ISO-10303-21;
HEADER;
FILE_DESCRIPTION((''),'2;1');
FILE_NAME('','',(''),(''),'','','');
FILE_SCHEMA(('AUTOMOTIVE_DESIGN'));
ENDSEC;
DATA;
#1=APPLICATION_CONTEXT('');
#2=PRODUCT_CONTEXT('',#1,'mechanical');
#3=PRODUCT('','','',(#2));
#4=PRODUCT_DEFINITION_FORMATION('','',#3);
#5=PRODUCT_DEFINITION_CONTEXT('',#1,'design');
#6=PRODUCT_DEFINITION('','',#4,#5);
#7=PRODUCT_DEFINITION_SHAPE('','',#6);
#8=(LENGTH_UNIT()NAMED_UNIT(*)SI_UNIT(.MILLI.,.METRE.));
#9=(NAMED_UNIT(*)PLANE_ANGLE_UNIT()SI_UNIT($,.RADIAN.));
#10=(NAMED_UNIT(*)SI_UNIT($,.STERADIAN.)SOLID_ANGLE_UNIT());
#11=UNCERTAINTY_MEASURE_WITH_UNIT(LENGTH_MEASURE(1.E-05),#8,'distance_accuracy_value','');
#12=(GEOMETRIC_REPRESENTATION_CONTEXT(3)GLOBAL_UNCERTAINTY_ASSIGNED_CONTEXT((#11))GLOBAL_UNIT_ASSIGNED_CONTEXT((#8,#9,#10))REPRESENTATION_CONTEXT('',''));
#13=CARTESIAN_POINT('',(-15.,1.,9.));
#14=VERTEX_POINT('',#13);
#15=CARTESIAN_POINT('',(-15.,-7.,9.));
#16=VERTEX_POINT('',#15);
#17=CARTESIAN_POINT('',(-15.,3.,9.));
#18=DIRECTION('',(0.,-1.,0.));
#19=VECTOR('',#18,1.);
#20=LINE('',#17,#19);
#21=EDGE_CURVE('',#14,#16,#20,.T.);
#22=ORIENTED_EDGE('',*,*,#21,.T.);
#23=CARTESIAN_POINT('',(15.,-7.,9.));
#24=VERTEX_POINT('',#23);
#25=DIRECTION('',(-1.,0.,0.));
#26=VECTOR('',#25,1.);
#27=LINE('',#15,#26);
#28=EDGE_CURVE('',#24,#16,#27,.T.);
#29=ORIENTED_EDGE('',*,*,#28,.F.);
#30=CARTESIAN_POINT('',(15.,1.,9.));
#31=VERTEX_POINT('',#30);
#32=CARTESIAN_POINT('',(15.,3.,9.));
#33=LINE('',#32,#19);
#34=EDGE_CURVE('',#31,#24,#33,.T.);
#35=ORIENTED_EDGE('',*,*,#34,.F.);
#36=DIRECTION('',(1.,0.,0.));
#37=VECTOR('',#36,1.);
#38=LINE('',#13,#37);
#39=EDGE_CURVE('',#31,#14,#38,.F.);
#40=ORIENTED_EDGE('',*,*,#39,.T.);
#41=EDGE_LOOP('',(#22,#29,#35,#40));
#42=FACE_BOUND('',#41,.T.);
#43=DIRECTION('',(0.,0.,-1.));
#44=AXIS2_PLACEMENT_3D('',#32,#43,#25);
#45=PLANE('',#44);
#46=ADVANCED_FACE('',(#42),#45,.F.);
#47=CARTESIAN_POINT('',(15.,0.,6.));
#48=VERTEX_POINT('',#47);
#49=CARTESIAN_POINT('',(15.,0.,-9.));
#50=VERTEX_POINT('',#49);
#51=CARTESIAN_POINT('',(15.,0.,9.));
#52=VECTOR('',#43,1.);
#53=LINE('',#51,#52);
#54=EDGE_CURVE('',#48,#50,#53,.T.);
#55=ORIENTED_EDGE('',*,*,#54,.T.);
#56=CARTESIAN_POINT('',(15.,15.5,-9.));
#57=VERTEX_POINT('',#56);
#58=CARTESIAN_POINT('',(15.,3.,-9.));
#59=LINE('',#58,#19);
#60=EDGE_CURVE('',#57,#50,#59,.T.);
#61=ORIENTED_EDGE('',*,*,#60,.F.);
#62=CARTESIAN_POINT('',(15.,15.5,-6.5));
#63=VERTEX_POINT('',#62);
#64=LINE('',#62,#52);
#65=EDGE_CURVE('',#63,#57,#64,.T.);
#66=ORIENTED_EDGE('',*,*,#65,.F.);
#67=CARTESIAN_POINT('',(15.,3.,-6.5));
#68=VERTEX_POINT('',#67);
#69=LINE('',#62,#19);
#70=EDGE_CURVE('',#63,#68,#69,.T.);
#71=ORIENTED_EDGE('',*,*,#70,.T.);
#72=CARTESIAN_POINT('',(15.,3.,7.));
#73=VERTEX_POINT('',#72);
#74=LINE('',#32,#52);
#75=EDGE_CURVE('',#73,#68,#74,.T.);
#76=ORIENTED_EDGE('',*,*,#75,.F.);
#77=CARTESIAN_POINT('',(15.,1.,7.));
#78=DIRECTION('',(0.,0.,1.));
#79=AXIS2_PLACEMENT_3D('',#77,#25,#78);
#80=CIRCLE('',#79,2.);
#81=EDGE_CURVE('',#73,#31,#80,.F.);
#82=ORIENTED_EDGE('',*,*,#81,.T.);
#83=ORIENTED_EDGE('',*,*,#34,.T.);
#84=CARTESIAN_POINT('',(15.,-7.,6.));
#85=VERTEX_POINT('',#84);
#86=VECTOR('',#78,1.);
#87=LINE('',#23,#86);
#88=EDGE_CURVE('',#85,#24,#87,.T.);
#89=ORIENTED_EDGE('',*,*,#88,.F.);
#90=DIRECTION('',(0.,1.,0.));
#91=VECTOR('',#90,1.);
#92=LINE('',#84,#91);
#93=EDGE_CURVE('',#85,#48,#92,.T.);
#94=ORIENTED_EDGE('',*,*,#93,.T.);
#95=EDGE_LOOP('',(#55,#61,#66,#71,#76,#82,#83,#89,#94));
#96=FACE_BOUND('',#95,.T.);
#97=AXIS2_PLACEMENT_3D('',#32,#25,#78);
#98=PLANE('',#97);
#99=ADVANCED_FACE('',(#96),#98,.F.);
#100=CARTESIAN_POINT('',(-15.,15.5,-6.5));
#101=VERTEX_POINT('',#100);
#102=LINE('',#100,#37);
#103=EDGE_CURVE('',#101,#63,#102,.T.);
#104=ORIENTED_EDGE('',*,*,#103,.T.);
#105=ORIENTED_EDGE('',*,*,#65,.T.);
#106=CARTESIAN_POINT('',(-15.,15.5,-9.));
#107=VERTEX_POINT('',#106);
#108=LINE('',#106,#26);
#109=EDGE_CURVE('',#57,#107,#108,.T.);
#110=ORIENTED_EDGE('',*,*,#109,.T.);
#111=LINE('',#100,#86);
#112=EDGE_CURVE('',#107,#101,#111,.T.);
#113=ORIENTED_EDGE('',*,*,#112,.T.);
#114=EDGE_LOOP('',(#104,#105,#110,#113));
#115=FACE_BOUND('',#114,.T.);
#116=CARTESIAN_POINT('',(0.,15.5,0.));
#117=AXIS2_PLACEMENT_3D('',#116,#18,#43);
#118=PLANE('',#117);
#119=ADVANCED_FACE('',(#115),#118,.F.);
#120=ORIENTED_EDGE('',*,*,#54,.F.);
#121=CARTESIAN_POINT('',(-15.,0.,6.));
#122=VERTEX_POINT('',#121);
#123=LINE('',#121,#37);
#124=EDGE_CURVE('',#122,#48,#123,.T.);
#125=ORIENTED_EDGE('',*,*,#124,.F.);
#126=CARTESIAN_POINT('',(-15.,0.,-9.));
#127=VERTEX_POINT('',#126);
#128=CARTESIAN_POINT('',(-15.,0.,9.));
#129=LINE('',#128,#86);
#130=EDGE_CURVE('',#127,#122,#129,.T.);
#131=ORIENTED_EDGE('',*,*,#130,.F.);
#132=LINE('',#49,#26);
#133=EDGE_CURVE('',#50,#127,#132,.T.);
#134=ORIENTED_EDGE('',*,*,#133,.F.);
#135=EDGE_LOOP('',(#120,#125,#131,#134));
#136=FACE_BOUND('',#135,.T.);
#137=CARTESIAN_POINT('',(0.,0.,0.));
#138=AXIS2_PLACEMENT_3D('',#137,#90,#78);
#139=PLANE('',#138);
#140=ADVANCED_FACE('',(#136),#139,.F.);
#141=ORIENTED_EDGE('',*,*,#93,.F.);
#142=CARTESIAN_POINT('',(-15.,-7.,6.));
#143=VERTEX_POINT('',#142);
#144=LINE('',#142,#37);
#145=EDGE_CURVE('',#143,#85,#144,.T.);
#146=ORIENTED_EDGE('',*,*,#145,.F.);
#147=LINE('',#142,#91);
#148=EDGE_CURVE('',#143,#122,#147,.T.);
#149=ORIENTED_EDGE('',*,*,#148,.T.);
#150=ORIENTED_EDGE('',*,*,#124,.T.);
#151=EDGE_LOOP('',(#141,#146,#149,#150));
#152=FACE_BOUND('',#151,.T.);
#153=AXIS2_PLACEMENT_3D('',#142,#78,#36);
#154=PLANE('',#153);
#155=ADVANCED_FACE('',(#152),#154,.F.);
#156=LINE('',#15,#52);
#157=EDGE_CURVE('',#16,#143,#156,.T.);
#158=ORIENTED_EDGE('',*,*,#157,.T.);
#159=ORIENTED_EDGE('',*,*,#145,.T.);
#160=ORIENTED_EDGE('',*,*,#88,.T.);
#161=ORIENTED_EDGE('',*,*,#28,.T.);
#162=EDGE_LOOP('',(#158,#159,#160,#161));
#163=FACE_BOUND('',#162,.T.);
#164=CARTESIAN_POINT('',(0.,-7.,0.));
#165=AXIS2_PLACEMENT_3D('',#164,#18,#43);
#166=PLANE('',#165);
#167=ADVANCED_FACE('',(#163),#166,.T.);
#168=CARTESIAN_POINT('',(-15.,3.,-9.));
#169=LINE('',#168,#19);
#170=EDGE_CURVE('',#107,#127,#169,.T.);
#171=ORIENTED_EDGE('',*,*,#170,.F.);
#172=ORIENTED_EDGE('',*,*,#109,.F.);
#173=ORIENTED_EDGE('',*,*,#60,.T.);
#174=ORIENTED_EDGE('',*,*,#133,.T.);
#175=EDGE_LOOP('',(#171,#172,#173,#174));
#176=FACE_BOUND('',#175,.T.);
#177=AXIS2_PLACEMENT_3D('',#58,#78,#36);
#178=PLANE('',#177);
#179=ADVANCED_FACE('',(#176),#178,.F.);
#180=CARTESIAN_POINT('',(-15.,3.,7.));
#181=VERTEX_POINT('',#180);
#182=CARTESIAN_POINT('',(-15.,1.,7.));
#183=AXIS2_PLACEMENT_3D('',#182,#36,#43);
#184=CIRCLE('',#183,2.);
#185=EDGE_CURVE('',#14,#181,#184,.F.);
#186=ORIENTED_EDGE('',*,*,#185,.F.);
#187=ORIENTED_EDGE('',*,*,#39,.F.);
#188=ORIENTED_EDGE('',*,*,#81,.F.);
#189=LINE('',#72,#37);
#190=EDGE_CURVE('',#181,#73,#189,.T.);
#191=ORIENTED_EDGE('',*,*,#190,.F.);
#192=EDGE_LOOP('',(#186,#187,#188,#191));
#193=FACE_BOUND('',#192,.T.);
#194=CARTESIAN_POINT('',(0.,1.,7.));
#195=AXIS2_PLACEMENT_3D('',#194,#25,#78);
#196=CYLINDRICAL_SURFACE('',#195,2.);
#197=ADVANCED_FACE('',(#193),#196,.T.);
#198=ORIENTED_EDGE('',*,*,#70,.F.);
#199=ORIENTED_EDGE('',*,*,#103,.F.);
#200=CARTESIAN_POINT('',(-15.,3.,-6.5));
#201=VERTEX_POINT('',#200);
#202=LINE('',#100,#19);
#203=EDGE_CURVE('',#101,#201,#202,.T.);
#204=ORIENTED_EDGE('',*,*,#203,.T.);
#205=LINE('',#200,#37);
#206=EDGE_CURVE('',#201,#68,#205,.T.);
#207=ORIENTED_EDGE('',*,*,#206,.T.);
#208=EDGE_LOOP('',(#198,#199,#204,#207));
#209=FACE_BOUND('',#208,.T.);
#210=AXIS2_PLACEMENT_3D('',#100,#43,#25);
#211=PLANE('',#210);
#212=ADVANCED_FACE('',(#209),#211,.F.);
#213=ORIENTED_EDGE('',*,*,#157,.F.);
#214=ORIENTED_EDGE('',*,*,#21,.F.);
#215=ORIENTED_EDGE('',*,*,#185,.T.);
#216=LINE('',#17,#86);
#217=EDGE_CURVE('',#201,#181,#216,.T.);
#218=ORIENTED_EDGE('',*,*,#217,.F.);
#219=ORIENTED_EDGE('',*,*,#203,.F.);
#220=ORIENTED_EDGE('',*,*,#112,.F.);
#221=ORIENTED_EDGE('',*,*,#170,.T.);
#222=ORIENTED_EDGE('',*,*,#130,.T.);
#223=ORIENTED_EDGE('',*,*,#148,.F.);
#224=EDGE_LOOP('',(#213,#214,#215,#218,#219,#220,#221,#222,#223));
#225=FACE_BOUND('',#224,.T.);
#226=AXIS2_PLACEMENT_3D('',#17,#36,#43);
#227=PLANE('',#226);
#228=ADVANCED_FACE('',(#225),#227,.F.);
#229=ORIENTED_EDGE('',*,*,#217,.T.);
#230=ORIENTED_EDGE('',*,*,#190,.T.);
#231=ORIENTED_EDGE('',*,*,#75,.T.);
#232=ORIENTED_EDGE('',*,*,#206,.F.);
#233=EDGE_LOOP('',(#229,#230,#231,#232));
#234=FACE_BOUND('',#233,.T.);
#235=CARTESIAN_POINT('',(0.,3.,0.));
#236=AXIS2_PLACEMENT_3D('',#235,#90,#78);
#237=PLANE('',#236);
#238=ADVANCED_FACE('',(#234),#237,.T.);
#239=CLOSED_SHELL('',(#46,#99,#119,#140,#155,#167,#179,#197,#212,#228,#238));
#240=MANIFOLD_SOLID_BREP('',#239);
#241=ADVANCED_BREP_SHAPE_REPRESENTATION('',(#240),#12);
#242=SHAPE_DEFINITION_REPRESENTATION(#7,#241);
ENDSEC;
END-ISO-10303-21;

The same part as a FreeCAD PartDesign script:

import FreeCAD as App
import Part
import Sketcher
from FreeCAD import Vector


def edges_at(feature, points):
    """Names of the edges that pass closest to the given points."""
    edges = feature.Shape.Edges
    near = lambda p: min(range(len(edges)), key=lambda i: edges[i].distToShape(Part.Vertex(*p))[0])
    return sorted({f"Edge{near(p) + 1}" for p in points})

doc = App.newDocument("Part")
params = doc.addObject("Spreadsheet::Sheet", "Params")
for row, (alias, value) in enumerate([
    ("sketch1_width", "30 mm"),
    ("sketch1_height", "18 mm"),
    ("pad1_length", "3 mm"),
    ("sketch2_width", "30 mm"),
    ("sketch2_height", "3 mm"),
    ("pad2_length", "7 mm"),
    ("fillet_radius", "2 mm"),
    ("sketch3_width", "30 mm"),
    ("sketch3_height", "2.5 mm"),
    ("pad3_length", "12.5 mm"),
], start=1):
    params.set(f"A{row}", alias)
    params.set(f"B{row}", "=" + value)
    params.setAlias(f"B{row}", alias)

body = doc.addObject("PartDesign::Body", "Body")

sketch1 = body.newObject("Sketcher::SketchObject", "Sketch")
sketch1.AttachmentSupport = (doc.getObject("XZ_Plane"), [""])
sketch1.MapMode = "FlatFace"
sketch1.addGeometry(Part.LineSegment(Vector(-15, -9, 0), Vector(-15, 9, 0)), False)
sketch1.addGeometry(Part.LineSegment(Vector(-15, 9, 0), Vector(15, 9, 0)), False)
sketch1.addGeometry(Part.LineSegment(Vector(15, 9, 0), Vector(15, -9, 0)), False)
sketch1.addGeometry(Part.LineSegment(Vector(15, -9, 0), Vector(-15, -9, 0)), False)
sketch1.addConstraint(Sketcher.Constraint("Coincident", 0, 2, 1, 1))
sketch1.addConstraint(Sketcher.Constraint("Coincident", 1, 2, 2, 1))
sketch1.addConstraint(Sketcher.Constraint("Coincident", 2, 2, 3, 1))
sketch1.addConstraint(Sketcher.Constraint("Coincident", 3, 2, 0, 1))
sketch1.addConstraint(Sketcher.Constraint("Vertical", 0))
sketch1.addConstraint(Sketcher.Constraint("Horizontal", 1))
sketch1.addConstraint(Sketcher.Constraint("Vertical", 2))
sketch1.addConstraint(Sketcher.Constraint("Horizontal", 3))
sketch1.addConstraint(Sketcher.Constraint("Symmetric", 0, 2, 2, 2, -1, 1))
sketch1.addConstraint(Sketcher.Constraint("DistanceX", 1, 1, 1, 2, 30.0))
sketch1.addConstraint(Sketcher.Constraint("DistanceY", 0, 1, 0, 2, 18.0))
sketch1.setExpression("Constraints[9]", "Params.sketch1_width")
sketch1.setExpression("Constraints[10]", "Params.sketch1_height")
pad1 = body.newObject("PartDesign::Pad", "Pad")
pad1.Profile = sketch1
pad1.setExpression("Length", "Params.pad1_length")
pad1.Reversed = True

sketch2 = body.newObject("Sketcher::SketchObject", "Sketch001")
sketch2.AttachmentSupport = (doc.getObject("XZ_Plane"), [""])
sketch2.MapMode = "FlatFace"
sketch2.addGeometry(Part.LineSegment(Vector(-15, 9, 0), Vector(-15, 6, 0)), False)
sketch2.addGeometry(Part.LineSegment(Vector(-15, 6, 0), Vector(15, 6, 0)), False)
sketch2.addGeometry(Part.LineSegment(Vector(15, 6, 0), Vector(15, 9, 0)), False)
sketch2.addGeometry(Part.LineSegment(Vector(15, 9, 0), Vector(-15, 9, 0)), False)
sketch2.addConstraint(Sketcher.Constraint("Coincident", 0, 2, 1, 1))
sketch2.addConstraint(Sketcher.Constraint("Coincident", 1, 2, 2, 1))
sketch2.addConstraint(Sketcher.Constraint("Coincident", 2, 2, 3, 1))
sketch2.addConstraint(Sketcher.Constraint("Coincident", 3, 2, 0, 1))
sketch2.addConstraint(Sketcher.Constraint("Vertical", 0))
sketch2.addConstraint(Sketcher.Constraint("Horizontal", 1))
sketch2.addConstraint(Sketcher.Constraint("Vertical", 2))
sketch2.addConstraint(Sketcher.Constraint("Horizontal", 3))
sketch2.addConstraint(Sketcher.Constraint("DistanceX", 1, 1, 1, 2, 30.0))
sketch2.addConstraint(Sketcher.Constraint("DistanceY", 0, 2, 0, 1, 3.0))
sketch2.addConstraint(Sketcher.Constraint("DistanceX", 0, 2, -1, 1, 15.0))
sketch2.addConstraint(Sketcher.Constraint("DistanceY", -1, 1, 0, 2, 6.0))
sketch2.setExpression("Constraints[8]", "Params.sketch2_width")
sketch2.setExpression("Constraints[9]", "Params.sketch2_height")
pad2 = body.newObject("PartDesign::Pad", "Pad001")
pad2.Profile = sketch2
pad2.setExpression("Length", "Params.pad2_length")
doc.recompute()

fillet = body.newObject("PartDesign::Fillet", "Fillet")
fillet.Base = (pad2, edges_at(pad2, [(0, 3, 9)]))
fillet.setExpression("Radius", "Params.fillet_radius")

sketch3 = body.newObject("Sketcher::SketchObject", "Sketch002")
sketch3.AttachmentSupport = (doc.getObject("XZ_Plane"), [""])
sketch3.MapMode = "FlatFace"
sketch3.AttachmentOffset = App.Placement(Vector(0, 0, -3), App.Rotation())
sketch3.addGeometry(Part.LineSegment(Vector(-15, -9, 0), Vector(-15, -6.5, 0)), False)
sketch3.addGeometry(Part.LineSegment(Vector(-15, -6.5, 0), Vector(15, -6.5, 0)), False)
sketch3.addGeometry(Part.LineSegment(Vector(15, -6.5, 0), Vector(15, -9, 0)), False)
sketch3.addGeometry(Part.LineSegment(Vector(15, -9, 0), Vector(-15, -9, 0)), False)
sketch3.addConstraint(Sketcher.Constraint("Coincident", 0, 2, 1, 1))
sketch3.addConstraint(Sketcher.Constraint("Coincident", 1, 2, 2, 1))
sketch3.addConstraint(Sketcher.Constraint("Coincident", 2, 2, 3, 1))
sketch3.addConstraint(Sketcher.Constraint("Coincident", 3, 2, 0, 1))
sketch3.addConstraint(Sketcher.Constraint("Vertical", 0))
sketch3.addConstraint(Sketcher.Constraint("Horizontal", 1))
sketch3.addConstraint(Sketcher.Constraint("Vertical", 2))
sketch3.addConstraint(Sketcher.Constraint("Horizontal", 3))
sketch3.addConstraint(Sketcher.Constraint("DistanceX", 1, 1, 1, 2, 30.0))
sketch3.addConstraint(Sketcher.Constraint("DistanceY", 0, 1, 0, 2, 2.5))
sketch3.addConstraint(Sketcher.Constraint("DistanceX", 0, 2, -1, 1, 15.0))
sketch3.addConstraint(Sketcher.Constraint("DistanceY", 2, 2, -1, 1, 9.0))
sketch3.setExpression("Constraints[8]", "Params.sketch3_width")
sketch3.setExpression("Constraints[9]", "Params.sketch3_height")
pad3 = body.newObject("PartDesign::Pad", "Pad002")
pad3.Profile = sketch3
pad3.setExpression("Length", "Params.pad3_length")
pad3.Reversed = True

doc.recompute()
